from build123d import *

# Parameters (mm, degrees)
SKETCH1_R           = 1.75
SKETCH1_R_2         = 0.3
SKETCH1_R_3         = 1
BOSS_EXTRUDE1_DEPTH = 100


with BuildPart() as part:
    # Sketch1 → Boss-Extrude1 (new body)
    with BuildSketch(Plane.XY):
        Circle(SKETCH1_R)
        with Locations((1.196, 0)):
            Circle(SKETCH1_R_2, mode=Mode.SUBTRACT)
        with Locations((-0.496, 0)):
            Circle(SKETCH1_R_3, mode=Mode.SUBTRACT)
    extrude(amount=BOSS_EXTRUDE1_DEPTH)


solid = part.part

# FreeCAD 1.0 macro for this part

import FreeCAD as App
import Part
import Sketcher

V = App.Vector

doc = App.newDocument("Part")
params = doc.addObject("Spreadsheet::Sheet", "Params")
for row, (alias, value) in enumerate([
    ("sketch1_diameter", "2 mm"),
    ("sketch1_diameter2", "3.5 mm"),
    ("sketch1_diameter3", "0.6 mm"),
    ("pad1_length", "100 mm"),
], start=1):
    params.set(f"A{row}", alias)
    params.set(f"B{row}", "=" + value)
    params.setAlias(f"B{row}", alias)

body = doc.addObject("PartDesign::Body", "Body")

sketch1 = doc.addObject("Sketcher::SketchObject", "Sketch")
body.addObject(sketch1)
sketch1.AttachmentSupport = (doc.XY_Plane, [""])
sketch1.MapMode = "FlatFace"
sketch1.addGeometry([
    Part.Circle(V(0, 0, 0), V(0, 0, 1), 1.75),
    Part.Circle(V(-0.496, 0, 0), V(0, 0, 1), 1),
    Part.Circle(V(1.196, 0, 0), V(0, 0, 1), 0.3),
], False)
sketch1.addConstraint([
    Sketcher.Constraint("Coincident", 0, 3, -1, 1),
    Sketcher.Constraint("PointOnObject", 1, 3, -1),
    Sketcher.Constraint("PointOnObject", 2, 3, -1),
    Sketcher.Constraint("Diameter", 1, 2.0),
    Sketcher.Constraint("Diameter", 0, 3.5),
    Sketcher.Constraint("Diameter", 2, 0.6),
    Sketcher.Constraint("DistanceX", 1, 3, -1, 1, 0.496),
    Sketcher.Constraint("DistanceX", -1, 1, 2, 3, 1.196),
])
sketch1.setExpression("Constraints[3]", "Params.sketch1_diameter")
sketch1.setExpression("Constraints[4]", "Params.sketch1_diameter2")
sketch1.setExpression("Constraints[5]", "Params.sketch1_diameter3")
pad1 = doc.addObject("PartDesign::Pad", "Pad")
body.addObject(pad1)
pad1.Profile = sketch1
pad1.setExpression("Length", "Params.pad1_length")

doc.recompute()
